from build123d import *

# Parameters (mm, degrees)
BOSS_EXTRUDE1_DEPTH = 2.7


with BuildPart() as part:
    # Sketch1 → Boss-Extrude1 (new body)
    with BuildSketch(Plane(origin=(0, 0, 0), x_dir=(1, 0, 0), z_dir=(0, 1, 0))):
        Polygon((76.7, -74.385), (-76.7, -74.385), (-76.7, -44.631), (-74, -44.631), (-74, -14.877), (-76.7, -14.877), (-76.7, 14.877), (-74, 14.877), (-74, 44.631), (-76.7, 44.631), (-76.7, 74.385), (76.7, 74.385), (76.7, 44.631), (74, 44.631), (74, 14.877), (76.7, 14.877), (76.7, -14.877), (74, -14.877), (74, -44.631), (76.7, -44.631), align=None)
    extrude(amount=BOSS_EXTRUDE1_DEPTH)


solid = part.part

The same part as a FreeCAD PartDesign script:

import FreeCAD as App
import Part
import Sketcher

V = App.Vector


def add_polygon(sketch, points):
    """Adds a closed chain of lines whose ends are joined by coincident constraints."""
    first, n = sketch.GeometryCount, len(points)
    for a, b in zip(points, points[1:] + points[:1]):
        sketch.addGeometry(Part.LineSegment(App.Vector(*a, 0), App.Vector(*b, 0)), False)
    for i in range(n):
        sketch.addConstraint(Sketcher.Constraint("Coincident", first + i, 2, first + (i + 1) % n, 1))

doc = App.newDocument("Part")
body = doc.addObject("PartDesign::Body", "Body")

# Sketch on XZ plane
sketch1 = body.newObject("Sketcher::SketchObject", "Sketch")
sketch1.AttachmentSupport = (doc.getObject("XZ_Plane"), [""])
sketch1.MapMode = "FlatFace"
add_polygon(sketch1, [(-76.7, 74.385), (76.7, 74.385), (76.7, 44.631), (74, 44.631), (74, 14.877), (76.7, 14.877), (76.7, -14.877), (74, -14.877), (74, -44.631), (76.7, -44.631), (76.7, -74.385), (-76.7, -74.385), (-76.7, -44.631), (-74, -44.631), (-74, -14.877), (-76.7, -14.877), (-76.7, 14.877), (-74, 14.877), (-74, 44.631), (-76.7, 44.631)])  # lines 0-19
sketch1.addConstraint([
    Sketcher.Constraint("Horizontal", 0),
    Sketcher.Constraint("Vertical", 1),
    Sketcher.Constraint("Horizontal", 2),
    Sketcher.Constraint("Vertical", 3),
    Sketcher.Constraint("Horizontal", 4),
    Sketcher.Constraint("Vertical", 5),
    Sketcher.Constraint("Horizontal", 6),
    Sketcher.Constraint("Vertical", 7),
    Sketcher.Constraint("Horizontal", 8),
    Sketcher.Constraint("Vertical", 9),
    Sketcher.Constraint("Horizontal", 10),
    Sketcher.Constraint("Vertical", 11),
    Sketcher.Constraint("Horizontal", 12),
    Sketcher.Constraint("Vertical", 13),
    Sketcher.Constraint("Horizontal", 14),
    Sketcher.Constraint("Vertical", 15),
    Sketcher.Constraint("Horizontal", 16),
    Sketcher.Constraint("Vertical", 17),
    Sketcher.Constraint("Horizontal", 18),
    Sketcher.Constraint("Vertical", 19),
    Sketcher.Constraint("Symmetric", 0, 2, 10, 2, -1, 1),
    Sketcher.Constraint("Symmetric", 2, 2, 12, 2, -1, 1),
    Sketcher.Constraint("Symmetric", 4, 2, 14, 2, -1, 1),
    Sketcher.Constraint("Symmetric", 6, 2, 16, 2, -1, 1),
    Sketcher.Constraint("Symmetric", 8, 2, 18, 2, -1, 1),
    Sketcher.Constraint("Symmetric", 8, 2, 11, 2, -2),
    Sketcher.Constraint("Symmetric", 6, 2, 13, 2, -2),
    Sketcher.Constraint("Vertical", 1, 2, 4, 2),
    Sketcher.Constraint("Equal", 1, 3),
    Sketcher.Constraint("Equal", 3, 5),
    Sketcher.Constraint("DistanceX", 0, 1, 0, 2, 153.4),
    Sketcher.Constraint("DistanceX", 2, 2, 2, 1, 2.7),
    Sketcher.Constraint("DistanceY", 1, 2, 1, 1, 29.754),
])
pad1 = body.newObject("PartDesign::Pad", "Pad")
pad1.Profile = sketch1
pad1.Length = 2.7
pad1.Reversed = True

doc.recompute()
